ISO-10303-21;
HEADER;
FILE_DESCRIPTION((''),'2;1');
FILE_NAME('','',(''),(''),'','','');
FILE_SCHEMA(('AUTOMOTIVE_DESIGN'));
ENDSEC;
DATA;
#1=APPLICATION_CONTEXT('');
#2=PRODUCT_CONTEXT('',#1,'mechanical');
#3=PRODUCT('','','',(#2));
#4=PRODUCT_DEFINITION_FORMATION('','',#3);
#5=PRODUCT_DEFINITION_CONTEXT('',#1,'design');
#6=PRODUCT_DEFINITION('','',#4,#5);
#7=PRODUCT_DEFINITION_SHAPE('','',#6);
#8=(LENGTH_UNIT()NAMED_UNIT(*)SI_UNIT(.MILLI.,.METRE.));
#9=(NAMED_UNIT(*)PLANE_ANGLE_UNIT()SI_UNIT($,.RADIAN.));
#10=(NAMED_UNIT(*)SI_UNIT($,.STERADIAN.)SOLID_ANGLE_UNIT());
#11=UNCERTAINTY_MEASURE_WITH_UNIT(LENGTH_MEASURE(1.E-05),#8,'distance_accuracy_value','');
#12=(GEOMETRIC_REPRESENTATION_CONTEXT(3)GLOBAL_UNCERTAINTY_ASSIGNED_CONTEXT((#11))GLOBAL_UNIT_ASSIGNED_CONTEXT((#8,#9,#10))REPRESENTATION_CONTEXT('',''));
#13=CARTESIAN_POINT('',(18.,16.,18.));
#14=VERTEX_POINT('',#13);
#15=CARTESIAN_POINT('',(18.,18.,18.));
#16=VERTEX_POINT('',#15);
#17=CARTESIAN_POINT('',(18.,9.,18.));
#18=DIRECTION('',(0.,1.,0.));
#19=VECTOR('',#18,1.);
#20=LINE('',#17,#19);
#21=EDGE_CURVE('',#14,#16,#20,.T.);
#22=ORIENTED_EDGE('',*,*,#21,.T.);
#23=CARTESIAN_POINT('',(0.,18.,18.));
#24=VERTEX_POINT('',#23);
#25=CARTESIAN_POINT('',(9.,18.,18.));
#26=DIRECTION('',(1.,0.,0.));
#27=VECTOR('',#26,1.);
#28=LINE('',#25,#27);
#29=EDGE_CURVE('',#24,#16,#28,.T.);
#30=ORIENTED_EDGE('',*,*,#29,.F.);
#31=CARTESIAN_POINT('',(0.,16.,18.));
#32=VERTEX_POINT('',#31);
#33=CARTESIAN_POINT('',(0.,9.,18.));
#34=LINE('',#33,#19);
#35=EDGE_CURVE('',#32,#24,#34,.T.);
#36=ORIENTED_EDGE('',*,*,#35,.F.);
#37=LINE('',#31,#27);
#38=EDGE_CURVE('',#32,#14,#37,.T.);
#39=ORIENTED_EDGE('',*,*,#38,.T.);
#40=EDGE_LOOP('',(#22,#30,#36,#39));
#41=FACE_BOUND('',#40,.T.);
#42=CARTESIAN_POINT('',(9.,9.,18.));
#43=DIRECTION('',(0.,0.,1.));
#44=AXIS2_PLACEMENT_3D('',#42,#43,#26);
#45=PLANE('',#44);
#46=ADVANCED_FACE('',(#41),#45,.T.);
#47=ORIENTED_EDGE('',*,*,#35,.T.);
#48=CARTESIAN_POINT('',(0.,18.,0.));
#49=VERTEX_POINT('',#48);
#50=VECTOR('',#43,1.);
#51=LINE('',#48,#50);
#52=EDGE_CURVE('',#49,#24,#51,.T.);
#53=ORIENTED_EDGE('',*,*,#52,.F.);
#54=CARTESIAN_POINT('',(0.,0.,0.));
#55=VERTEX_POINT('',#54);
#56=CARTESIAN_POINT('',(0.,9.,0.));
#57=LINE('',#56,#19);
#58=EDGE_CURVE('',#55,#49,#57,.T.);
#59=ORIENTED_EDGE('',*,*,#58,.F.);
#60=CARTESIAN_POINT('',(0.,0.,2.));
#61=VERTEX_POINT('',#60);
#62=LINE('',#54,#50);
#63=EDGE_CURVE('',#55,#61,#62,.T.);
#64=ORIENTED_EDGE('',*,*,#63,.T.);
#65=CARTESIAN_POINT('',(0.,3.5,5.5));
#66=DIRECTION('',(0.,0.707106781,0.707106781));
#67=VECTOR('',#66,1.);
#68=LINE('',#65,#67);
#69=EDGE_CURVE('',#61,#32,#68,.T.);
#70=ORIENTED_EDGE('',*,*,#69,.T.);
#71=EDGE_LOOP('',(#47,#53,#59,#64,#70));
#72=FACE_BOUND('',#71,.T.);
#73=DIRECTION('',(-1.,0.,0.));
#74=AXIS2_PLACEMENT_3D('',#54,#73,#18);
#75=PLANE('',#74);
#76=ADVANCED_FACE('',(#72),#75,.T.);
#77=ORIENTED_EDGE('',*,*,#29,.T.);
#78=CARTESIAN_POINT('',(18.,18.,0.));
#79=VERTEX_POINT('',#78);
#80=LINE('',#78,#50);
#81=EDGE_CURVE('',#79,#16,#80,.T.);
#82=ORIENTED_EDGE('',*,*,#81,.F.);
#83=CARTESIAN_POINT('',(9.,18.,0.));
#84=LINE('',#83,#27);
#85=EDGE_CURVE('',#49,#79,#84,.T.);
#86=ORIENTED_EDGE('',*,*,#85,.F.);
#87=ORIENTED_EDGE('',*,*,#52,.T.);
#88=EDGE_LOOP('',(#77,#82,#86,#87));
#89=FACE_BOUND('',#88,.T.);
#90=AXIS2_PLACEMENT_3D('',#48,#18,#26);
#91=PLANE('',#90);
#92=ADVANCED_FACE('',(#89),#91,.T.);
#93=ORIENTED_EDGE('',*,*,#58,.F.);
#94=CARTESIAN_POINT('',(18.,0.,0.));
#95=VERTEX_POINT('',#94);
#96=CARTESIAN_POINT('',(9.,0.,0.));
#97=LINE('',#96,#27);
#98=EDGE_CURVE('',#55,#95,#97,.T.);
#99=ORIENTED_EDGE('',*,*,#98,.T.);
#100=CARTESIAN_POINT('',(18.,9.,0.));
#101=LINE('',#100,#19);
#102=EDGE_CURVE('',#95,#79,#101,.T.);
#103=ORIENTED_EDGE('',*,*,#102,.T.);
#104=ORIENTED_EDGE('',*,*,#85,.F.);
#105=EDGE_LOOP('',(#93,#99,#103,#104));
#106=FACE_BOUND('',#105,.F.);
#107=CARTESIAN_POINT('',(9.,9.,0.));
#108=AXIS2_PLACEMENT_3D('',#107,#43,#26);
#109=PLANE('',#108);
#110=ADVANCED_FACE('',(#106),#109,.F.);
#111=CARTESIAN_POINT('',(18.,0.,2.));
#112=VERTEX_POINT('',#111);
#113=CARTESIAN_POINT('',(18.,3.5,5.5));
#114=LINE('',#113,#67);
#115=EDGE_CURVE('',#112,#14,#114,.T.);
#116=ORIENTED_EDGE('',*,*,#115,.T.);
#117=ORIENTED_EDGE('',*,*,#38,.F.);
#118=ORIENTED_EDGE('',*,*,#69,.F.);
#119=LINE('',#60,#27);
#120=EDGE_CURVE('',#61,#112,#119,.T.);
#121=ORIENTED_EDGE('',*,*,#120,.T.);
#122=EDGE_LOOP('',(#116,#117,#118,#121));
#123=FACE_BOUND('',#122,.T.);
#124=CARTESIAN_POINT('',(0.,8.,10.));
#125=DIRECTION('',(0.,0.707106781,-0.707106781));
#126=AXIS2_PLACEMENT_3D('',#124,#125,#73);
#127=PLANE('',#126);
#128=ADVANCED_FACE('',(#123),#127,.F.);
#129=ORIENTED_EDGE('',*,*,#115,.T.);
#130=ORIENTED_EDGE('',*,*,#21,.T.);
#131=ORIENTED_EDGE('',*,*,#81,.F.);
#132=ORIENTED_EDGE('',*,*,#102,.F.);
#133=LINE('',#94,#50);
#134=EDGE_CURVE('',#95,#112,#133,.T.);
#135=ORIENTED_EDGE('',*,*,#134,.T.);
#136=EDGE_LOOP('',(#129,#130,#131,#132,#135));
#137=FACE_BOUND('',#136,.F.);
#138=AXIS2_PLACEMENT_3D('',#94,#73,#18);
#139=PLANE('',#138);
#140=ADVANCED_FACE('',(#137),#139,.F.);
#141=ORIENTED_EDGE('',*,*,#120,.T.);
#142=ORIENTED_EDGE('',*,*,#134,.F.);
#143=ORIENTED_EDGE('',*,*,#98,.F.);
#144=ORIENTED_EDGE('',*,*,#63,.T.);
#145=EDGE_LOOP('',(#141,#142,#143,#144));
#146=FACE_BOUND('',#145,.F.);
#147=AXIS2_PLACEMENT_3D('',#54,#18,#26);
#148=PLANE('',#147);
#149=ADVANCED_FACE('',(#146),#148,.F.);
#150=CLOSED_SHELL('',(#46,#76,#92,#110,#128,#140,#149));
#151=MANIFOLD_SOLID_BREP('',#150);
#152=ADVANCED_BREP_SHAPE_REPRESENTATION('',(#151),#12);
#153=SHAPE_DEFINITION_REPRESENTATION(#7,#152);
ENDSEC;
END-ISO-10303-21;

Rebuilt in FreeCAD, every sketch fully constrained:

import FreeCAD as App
import Part
import Sketcher
from FreeCAD import Vector
Q = App.Units.Quantity


def edges_at(feature, points):
    """Names of the edges that pass closest to the given points."""
    edges = feature.Shape.Edges
    near = lambda p: min(range(len(edges)), key=lambda i: edges[i].distToShape(Part.Vertex(*p))[0])
    return sorted({f"Edge{near(p) + 1}" for p in points})


def add_polygon(sketch, points):
    """Adds a closed chain of lines whose ends are joined by coincident constraints."""
    first, n = sketch.GeometryCount, len(points)
    for a, b in zip(points, points[1:] + points[:1]):
        sketch.addGeometry(Part.LineSegment(App.Vector(*a, 0), App.Vector(*b, 0)), False)
    for i in range(n):
        sketch.addConstraint(Sketcher.Constraint("Coincident", first + i, 2, first + (i + 1) % n, 1))

doc = App.newDocument("Part")
body = doc.addObject("PartDesign::Body", "Body")

sketch1 = doc.addObject("Sketcher::SketchObject", "Sketch")
body.addObject(sketch1)
sketch1.AttachmentSupport = (doc.XY_Plane, [""])
sketch1.MapMode = "FlatFace"
add_polygon(sketch1, [(0, 18), (0, 0), (18, 0), (18, 18)])
sketch1.addConstraint([
    Sketcher.Constraint("Vertical", 0),
    Sketcher.Constraint("Horizontal", 1),
    Sketcher.Constraint("Vertical", 2),
    Sketcher.Constraint("Horizontal", 3),
    Sketcher.Constraint("Coincident", 0, 2, -1, 1),
    Sketcher.Constraint("Equal", 3, 0),
    Sketcher.Constraint("DistanceX", 1, 1, 1, 2, Q("18 mm")),
])
pad1 = doc.addObject("PartDesign::Pad", "Pad")
body.addObject(pad1)
pad1.Profile = sketch1
pad1.Length = 18
doc.recompute()

chamfer = doc.addObject("PartDesign::Chamfer", "Chamfer")
body.addObject(chamfer)
chamfer.Base = (pad1, edges_at(pad1, [(9, 0, 18)]))
chamfer.Size = 16

doc.recompute()
